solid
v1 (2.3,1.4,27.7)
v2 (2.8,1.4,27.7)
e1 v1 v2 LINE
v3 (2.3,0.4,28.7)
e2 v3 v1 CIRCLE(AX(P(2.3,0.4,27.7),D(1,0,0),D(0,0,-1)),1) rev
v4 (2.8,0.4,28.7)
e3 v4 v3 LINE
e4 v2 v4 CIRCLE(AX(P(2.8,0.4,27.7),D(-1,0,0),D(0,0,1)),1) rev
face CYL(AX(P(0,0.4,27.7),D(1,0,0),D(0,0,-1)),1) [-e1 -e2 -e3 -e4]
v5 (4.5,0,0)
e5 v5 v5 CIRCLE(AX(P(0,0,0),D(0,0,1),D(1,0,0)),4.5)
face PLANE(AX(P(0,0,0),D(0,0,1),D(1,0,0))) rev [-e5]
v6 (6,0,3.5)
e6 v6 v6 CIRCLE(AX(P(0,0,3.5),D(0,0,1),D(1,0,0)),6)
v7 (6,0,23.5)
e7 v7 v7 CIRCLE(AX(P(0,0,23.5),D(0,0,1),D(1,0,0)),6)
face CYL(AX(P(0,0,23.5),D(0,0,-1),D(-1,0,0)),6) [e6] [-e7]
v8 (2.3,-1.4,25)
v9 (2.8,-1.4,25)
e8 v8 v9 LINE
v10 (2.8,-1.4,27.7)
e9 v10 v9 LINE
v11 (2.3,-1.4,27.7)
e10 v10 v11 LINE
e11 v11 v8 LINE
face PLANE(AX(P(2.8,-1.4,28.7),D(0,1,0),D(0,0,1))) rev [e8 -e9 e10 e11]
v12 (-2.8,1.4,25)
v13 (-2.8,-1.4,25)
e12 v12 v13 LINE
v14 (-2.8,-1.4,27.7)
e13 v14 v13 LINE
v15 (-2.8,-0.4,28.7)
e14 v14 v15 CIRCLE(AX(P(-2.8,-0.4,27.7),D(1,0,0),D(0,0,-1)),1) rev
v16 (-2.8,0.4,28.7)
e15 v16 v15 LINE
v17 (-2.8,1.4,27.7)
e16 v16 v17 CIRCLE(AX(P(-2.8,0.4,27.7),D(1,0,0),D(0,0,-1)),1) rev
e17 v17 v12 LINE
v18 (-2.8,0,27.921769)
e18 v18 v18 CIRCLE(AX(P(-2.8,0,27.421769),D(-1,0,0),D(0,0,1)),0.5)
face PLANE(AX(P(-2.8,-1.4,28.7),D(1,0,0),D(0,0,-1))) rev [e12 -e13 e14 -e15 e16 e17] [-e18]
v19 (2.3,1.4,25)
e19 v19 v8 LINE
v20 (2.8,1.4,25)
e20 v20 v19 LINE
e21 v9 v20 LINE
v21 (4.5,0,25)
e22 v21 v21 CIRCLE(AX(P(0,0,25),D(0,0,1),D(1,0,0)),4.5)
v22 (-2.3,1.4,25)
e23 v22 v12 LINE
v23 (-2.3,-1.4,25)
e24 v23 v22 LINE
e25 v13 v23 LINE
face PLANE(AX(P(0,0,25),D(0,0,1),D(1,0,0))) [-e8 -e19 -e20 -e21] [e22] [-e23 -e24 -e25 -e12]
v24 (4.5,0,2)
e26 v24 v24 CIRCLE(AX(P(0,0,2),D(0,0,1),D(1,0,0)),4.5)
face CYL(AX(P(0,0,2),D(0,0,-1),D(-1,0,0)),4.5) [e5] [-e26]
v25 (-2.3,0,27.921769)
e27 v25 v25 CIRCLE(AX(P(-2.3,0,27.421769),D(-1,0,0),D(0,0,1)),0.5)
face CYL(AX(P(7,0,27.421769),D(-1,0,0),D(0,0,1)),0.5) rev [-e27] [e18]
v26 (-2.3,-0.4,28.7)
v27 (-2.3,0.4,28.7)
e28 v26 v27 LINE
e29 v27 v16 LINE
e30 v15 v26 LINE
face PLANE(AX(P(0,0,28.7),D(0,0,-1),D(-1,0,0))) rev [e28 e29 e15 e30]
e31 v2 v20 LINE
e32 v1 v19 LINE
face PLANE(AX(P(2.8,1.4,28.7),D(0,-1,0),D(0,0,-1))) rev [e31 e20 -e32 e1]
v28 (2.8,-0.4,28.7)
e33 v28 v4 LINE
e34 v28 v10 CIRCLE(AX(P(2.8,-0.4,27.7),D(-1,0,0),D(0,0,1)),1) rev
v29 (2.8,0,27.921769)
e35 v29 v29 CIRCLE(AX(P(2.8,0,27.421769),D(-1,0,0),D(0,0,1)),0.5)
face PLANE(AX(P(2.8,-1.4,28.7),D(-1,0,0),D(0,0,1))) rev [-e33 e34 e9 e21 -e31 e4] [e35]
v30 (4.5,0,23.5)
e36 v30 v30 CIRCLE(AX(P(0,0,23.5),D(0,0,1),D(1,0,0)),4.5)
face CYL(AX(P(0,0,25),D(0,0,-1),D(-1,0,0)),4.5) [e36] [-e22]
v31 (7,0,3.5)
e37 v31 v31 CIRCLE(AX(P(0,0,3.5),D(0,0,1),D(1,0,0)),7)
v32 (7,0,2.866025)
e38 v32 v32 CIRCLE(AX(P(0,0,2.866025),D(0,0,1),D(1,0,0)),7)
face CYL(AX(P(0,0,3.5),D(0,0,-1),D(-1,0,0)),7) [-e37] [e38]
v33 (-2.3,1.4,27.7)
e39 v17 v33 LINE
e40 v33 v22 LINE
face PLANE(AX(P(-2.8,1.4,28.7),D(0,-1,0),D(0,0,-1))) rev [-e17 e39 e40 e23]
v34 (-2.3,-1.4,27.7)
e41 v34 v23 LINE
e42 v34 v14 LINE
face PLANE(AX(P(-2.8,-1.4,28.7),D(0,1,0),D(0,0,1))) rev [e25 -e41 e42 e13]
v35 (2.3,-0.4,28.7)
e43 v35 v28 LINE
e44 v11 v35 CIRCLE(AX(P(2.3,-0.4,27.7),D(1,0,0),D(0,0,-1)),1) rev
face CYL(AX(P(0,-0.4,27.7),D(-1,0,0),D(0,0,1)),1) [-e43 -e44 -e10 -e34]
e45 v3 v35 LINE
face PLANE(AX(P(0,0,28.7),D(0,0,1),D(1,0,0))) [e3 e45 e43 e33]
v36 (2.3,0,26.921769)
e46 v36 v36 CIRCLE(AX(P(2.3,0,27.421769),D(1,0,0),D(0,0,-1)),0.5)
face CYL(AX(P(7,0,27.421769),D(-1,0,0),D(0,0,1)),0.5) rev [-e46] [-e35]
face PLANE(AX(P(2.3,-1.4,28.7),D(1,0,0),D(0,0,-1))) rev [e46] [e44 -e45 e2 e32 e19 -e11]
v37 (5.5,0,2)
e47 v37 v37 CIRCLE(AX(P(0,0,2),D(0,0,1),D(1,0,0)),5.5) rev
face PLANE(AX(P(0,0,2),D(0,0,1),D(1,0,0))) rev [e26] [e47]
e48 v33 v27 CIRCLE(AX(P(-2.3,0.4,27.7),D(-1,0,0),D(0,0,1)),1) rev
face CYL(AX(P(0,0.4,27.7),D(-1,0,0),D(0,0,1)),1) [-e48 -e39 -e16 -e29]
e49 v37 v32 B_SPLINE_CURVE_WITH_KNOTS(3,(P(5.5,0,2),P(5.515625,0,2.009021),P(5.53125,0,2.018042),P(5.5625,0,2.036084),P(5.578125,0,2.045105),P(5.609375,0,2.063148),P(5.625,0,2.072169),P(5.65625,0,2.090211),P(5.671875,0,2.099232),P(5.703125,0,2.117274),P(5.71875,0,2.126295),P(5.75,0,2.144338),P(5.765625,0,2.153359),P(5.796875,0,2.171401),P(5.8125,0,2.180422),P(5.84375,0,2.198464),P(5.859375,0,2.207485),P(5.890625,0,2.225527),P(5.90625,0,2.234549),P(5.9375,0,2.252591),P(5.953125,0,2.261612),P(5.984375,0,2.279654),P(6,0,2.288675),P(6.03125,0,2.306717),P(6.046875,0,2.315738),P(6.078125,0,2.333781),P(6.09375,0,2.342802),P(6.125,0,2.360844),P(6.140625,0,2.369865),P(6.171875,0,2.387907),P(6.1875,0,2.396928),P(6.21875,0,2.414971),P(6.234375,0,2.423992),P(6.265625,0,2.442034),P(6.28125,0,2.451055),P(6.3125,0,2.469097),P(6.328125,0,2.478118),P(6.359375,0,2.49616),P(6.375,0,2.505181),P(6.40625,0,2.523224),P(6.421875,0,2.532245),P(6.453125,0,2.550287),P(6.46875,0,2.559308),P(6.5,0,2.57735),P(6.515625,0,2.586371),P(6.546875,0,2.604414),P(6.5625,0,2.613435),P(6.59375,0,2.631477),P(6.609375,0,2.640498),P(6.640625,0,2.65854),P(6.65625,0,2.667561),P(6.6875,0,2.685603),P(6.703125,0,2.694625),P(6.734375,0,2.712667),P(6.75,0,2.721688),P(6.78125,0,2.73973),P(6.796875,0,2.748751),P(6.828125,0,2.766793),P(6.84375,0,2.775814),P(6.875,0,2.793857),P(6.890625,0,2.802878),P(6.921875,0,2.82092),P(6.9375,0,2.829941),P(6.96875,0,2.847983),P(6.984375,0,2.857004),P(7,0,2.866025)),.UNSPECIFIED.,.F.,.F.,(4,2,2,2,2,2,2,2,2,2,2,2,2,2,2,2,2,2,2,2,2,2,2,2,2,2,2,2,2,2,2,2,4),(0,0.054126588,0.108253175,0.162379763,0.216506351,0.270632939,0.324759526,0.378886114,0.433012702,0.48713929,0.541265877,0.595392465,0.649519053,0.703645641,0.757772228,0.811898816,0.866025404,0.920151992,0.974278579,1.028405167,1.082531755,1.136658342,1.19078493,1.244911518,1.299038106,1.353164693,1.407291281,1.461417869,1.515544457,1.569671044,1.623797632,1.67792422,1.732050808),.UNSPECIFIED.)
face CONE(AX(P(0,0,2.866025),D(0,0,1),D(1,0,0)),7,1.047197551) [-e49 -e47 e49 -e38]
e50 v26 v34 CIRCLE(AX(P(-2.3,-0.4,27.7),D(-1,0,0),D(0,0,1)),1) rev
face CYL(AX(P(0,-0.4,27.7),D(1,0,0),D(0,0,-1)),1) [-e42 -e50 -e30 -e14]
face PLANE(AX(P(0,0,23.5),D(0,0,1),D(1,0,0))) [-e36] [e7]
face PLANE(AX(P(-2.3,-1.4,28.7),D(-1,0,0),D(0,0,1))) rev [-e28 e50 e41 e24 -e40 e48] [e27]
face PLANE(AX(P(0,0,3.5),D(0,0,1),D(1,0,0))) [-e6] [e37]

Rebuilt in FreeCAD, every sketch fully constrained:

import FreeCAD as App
import Part
import Sketcher
from FreeCAD import Vector


def edges_at(feature, points):
    """Names of the edges that pass closest to the given points."""
    edges = feature.Shape.Edges
    near = lambda p: min(range(len(edges)), key=lambda i: edges[i].distToShape(Part.Vertex(*p))[0])
    return sorted({f"Edge{near(p) + 1}" for p in points})

doc = App.newDocument("Part")
body = doc.addObject("PartDesign::Body", "Body")

sketch1 = body.newObject("Sketcher::SketchObject", "Sketch")
sketch1.AttachmentSupport = (doc.getObject("XY_Plane"), [""])
sketch1.MapMode = "FlatFace"
sketch1.addGeometry(Part.Circle(Vector(0, 0, 0), Vector(0, 0, 1), 4.5), False)
sketch1.addConstraint([
    Sketcher.Constraint("Coincident", 0, 3, -1, 1),
    Sketcher.Constraint("Diameter", 0, 9.0),
])
pad1 = body.newObject("PartDesign::Pad", "Pad")
pad1.Profile = sketch1
pad1.Length = 2

sketch2 = body.newObject("Sketcher::SketchObject", "Sketch001")
sketch2.AttachmentSupport = (doc.getObject("XY_Plane"), [""])
sketch2.MapMode = "FlatFace"
sketch2.AttachmentOffset = App.Placement(Vector(0, 0, 2), App.Rotation())
sketch2.addGeometry(Part.Circle(Vector(0, 0, 0), Vector(0, 0, 1), 7), False)
sketch2.addConstraint([
    Sketcher.Constraint("Coincident", 0, 3, -1, 1),
    Sketcher.Constraint("Diameter", 0, 14.0),
])
pad2 = body.newObject("PartDesign::Pad", "Pad001")
pad2.Profile = sketch2
pad2.Length = 1.5

sketch3 = body.newObject("Sketcher::SketchObject", "Sketch002")
sketch3.AttachmentSupport = (doc.getObject("XY_Plane"), [""])
sketch3.MapMode = "FlatFace"
sketch3.AttachmentOffset = App.Placement(Vector(0, 0, 3.5), App.Rotation())
sketch3.addGeometry(Part.Circle(Vector(0, 0, 0), Vector(0, 0, 1), 6), False)
sketch3.addConstraint([
    Sketcher.Constraint("Coincident", 0, 3, -1, 1),
    Sketcher.Constraint("Diameter", 0, 12.0),
])
pad3 = body.newObject("PartDesign::Pad", "Pad002")
pad3.Profile = sketch3
pad3.Length = 20

sketch4 = body.newObject("Sketcher::SketchObject", "Sketch003")
sketch4.AttachmentSupport = (doc.getObject("XY_Plane"), [""])
sketch4.MapMode = "FlatFace"
sketch4.AttachmentOffset = App.Placement(Vector(0, 0, 23.5), App.Rotation())
sketch4.addGeometry(Part.Circle(Vector(0, 0, 0), Vector(0, 0, 1), 4.5), False)
sketch4.addConstraint([
    Sketcher.Constraint("Coincident", 0, 3, -1, 1),
    Sketcher.Constraint("Diameter", 0, 9.0),
])
pad4 = body.newObject("PartDesign::Pad", "Pad003")
pad4.Profile = sketch4
pad4.Length = 1.5

sketch5 = body.newObject("Sketcher::SketchObject", "Sketch004")
sketch5.AttachmentSupport = (doc.getObject("XY_Plane"), [""])
sketch5.MapMode = "FlatFace"
sketch5.AttachmentOffset = App.Placement(Vector(0, 0, 25), App.Rotation())
sketch5.addGeometry([
    Part.LineSegment(Vector(2.3, 1.4, 0), Vector(2.3, -1.4, 0)),
    Part.LineSegment(Vector(2.3, -1.4, 0), Vector(2.8, -1.4, 0)),
    Part.LineSegment(Vector(2.8, -1.4, 0), Vector(2.8, 1.4, 0)),
    Part.LineSegment(Vector(2.8, 1.4, 0), Vector(2.3, 1.4, 0)),
    Part.LineSegment(Vector(-2.8, 1.4, 0), Vector(-2.8, -1.4, 0)),
    Part.LineSegment(Vector(-2.8, -1.4, 0), Vector(-2.3, -1.4, 0)),
    Part.LineSegment(Vector(-2.3, -1.4, 0), Vector(-2.3, 1.4, 0)),
    Part.LineSegment(Vector(-2.3, 1.4, 0), Vector(-2.8, 1.4, 0)),
], False)
sketch5.addConstraint([
    Sketcher.Constraint("Coincident", 0, 2, 1, 1),
    Sketcher.Constraint("Coincident", 1, 2, 2, 1),
    Sketcher.Constraint("Coincident", 2, 2, 3, 1),
    Sketcher.Constraint("Coincident", 3, 2, 0, 1),
    Sketcher.Constraint("Coincident", 4, 2, 5, 1),
    Sketcher.Constraint("Coincident", 5, 2, 6, 1),
    Sketcher.Constraint("Coincident", 6, 2, 7, 1),
    Sketcher.Constraint("Coincident", 7, 2, 4, 1),
    Sketcher.Constraint("Vertical", 0),
    Sketcher.Constraint("Horizontal", 1),
    Sketcher.Constraint("Vertical", 2),
    Sketcher.Constraint("Horizontal", 3),
    Sketcher.Constraint("Vertical", 4),
    Sketcher.Constraint("Horizontal", 5),
    Sketcher.Constraint("Vertical", 6),
    Sketcher.Constraint("Horizontal", 7),
    Sketcher.Constraint("Symmetric", 2, 2, 4, 2, -1, 1),
    Sketcher.Constraint("Symmetric", 0, 2, 6, 2, -1, 1),
    Sketcher.Constraint("Horizontal", 1, 2, 4, 2),
    Sketcher.Constraint("DistanceX", 1, 1, 1, 2, 0.5),
    Sketcher.Constraint("DistanceY", 0, 2, 0, 1, 2.8),
    Sketcher.Constraint("DistanceX", -1, 1, 0, 2, 2.3),
])
pad5 = body.newObject("PartDesign::Pad", "Pad004")
pad5.Profile = sketch5
pad5.Length = 3.7
doc.recompute()

chamfer = body.newObject("PartDesign::Chamfer", "Chamfer")
chamfer.Base = (pad5, edges_at(pad5, [(-7, 0, 2)]))
chamfer.ChamferType = "Two distances"
chamfer.Size = 1.5
chamfer.Size2 = 0.866025
doc.recompute()

fillet = body.newObject("PartDesign::Fillet", "Fillet")
fillet.Base = (chamfer, edges_at(chamfer, [
    (-2.55, 1.4, 28.7),
    (-2.55, -1.4, 28.7),
    (2.55, 1.4, 28.7),
    (2.55, -1.4, 28.7),
]))
fillet.Radius = 1

sketch6 = body.newObject("Sketcher::SketchObject", "Sketch005")
sketch6.AttachmentSupport = (doc.getObject("YZ_Plane"), [""])
sketch6.MapMode = "FlatFace"
sketch6.AttachmentOffset = App.Placement(Vector(0, 0, -2.8), App.Rotation())
sketch6.addGeometry(Part.Circle(Vector(0, 27.4, 0), Vector(0, 0, 1), 0.5), False)
sketch6.addConstraint([
    Sketcher.Constraint("PointOnObject", 0, 3, -2),
    Sketcher.Constraint("Diameter", 0, 1.0),
    Sketcher.Constraint("DistanceY", -1, 1, 0, 3, 27.421769),
])
pocket1 = body.newObject("PartDesign::Pocket", "Pocket")
pocket1.Profile = sketch6
pocket1.Type = "ThroughAll"
pocket1.Reversed = True

doc.recompute()
